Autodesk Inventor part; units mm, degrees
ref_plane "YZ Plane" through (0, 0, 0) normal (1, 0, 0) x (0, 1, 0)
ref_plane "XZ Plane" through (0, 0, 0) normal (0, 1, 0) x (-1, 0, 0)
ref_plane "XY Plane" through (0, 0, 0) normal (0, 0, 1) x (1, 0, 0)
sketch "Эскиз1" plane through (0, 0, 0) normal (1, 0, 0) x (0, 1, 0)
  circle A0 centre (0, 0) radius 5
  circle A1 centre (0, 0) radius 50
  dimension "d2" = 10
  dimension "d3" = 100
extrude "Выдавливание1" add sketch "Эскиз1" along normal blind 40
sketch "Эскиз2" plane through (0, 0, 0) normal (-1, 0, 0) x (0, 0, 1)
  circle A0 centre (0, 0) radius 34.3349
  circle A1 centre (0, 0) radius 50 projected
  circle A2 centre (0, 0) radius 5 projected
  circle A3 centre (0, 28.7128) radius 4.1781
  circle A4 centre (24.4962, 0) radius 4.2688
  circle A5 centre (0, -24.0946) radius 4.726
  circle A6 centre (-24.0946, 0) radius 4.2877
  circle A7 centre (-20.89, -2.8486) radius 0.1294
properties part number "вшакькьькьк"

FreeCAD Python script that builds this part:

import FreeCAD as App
import Part
import Sketcher
from FreeCAD import Vector
Q = App.Units.Quantity

doc = App.newDocument("Part")
params = doc.addObject("Spreadsheet::Sheet", "Params")
for row, (alias, value) in enumerate([
    ("sketch1_diameter", "3.937 in"),
    ("pad1_length", "1.5748031 in"),
], start=1):
    params.set(f"A{row}", alias)
    params.set(f"B{row}", "=" + value)
    params.setAlias(f"B{row}", alias)

body = doc.addObject("PartDesign::Body", "Body")

sketch1 = doc.addObject("Sketcher::SketchObject", "Sketch")
body.addObject(sketch1)
sketch1.AttachmentSupport = (doc.YZ_Plane, [""])
sketch1.MapMode = "FlatFace"
sketch1.addGeometry(Part.Circle(Vector(0, 0, 0), Vector(0, 0, 1), 50), False)
sketch1.addGeometry(Part.Circle(Vector(0, 0, 0), Vector(0, 0, 1), 5), False)
sketch1.addConstraint(Sketcher.Constraint("Coincident", 0, 3, -1, 1))
sketch1.addConstraint(Sketcher.Constraint("Coincident", 1, 3, -1, 1))
sketch1.addConstraint(Sketcher.Constraint("Diameter", 0, Q("3.937 in")))
sketch1.addConstraint(Sketcher.Constraint("Diameter", 1, Q("0.3937 in")))
sketch1.setExpression("Constraints[2]", "Params.sketch1_diameter")
pad1 = doc.addObject("PartDesign::Pad", "Pad")
body.addObject(pad1)
pad1.Profile = sketch1
pad1.setExpression("Length", "Params.pad1_length")

doc.recompute()
